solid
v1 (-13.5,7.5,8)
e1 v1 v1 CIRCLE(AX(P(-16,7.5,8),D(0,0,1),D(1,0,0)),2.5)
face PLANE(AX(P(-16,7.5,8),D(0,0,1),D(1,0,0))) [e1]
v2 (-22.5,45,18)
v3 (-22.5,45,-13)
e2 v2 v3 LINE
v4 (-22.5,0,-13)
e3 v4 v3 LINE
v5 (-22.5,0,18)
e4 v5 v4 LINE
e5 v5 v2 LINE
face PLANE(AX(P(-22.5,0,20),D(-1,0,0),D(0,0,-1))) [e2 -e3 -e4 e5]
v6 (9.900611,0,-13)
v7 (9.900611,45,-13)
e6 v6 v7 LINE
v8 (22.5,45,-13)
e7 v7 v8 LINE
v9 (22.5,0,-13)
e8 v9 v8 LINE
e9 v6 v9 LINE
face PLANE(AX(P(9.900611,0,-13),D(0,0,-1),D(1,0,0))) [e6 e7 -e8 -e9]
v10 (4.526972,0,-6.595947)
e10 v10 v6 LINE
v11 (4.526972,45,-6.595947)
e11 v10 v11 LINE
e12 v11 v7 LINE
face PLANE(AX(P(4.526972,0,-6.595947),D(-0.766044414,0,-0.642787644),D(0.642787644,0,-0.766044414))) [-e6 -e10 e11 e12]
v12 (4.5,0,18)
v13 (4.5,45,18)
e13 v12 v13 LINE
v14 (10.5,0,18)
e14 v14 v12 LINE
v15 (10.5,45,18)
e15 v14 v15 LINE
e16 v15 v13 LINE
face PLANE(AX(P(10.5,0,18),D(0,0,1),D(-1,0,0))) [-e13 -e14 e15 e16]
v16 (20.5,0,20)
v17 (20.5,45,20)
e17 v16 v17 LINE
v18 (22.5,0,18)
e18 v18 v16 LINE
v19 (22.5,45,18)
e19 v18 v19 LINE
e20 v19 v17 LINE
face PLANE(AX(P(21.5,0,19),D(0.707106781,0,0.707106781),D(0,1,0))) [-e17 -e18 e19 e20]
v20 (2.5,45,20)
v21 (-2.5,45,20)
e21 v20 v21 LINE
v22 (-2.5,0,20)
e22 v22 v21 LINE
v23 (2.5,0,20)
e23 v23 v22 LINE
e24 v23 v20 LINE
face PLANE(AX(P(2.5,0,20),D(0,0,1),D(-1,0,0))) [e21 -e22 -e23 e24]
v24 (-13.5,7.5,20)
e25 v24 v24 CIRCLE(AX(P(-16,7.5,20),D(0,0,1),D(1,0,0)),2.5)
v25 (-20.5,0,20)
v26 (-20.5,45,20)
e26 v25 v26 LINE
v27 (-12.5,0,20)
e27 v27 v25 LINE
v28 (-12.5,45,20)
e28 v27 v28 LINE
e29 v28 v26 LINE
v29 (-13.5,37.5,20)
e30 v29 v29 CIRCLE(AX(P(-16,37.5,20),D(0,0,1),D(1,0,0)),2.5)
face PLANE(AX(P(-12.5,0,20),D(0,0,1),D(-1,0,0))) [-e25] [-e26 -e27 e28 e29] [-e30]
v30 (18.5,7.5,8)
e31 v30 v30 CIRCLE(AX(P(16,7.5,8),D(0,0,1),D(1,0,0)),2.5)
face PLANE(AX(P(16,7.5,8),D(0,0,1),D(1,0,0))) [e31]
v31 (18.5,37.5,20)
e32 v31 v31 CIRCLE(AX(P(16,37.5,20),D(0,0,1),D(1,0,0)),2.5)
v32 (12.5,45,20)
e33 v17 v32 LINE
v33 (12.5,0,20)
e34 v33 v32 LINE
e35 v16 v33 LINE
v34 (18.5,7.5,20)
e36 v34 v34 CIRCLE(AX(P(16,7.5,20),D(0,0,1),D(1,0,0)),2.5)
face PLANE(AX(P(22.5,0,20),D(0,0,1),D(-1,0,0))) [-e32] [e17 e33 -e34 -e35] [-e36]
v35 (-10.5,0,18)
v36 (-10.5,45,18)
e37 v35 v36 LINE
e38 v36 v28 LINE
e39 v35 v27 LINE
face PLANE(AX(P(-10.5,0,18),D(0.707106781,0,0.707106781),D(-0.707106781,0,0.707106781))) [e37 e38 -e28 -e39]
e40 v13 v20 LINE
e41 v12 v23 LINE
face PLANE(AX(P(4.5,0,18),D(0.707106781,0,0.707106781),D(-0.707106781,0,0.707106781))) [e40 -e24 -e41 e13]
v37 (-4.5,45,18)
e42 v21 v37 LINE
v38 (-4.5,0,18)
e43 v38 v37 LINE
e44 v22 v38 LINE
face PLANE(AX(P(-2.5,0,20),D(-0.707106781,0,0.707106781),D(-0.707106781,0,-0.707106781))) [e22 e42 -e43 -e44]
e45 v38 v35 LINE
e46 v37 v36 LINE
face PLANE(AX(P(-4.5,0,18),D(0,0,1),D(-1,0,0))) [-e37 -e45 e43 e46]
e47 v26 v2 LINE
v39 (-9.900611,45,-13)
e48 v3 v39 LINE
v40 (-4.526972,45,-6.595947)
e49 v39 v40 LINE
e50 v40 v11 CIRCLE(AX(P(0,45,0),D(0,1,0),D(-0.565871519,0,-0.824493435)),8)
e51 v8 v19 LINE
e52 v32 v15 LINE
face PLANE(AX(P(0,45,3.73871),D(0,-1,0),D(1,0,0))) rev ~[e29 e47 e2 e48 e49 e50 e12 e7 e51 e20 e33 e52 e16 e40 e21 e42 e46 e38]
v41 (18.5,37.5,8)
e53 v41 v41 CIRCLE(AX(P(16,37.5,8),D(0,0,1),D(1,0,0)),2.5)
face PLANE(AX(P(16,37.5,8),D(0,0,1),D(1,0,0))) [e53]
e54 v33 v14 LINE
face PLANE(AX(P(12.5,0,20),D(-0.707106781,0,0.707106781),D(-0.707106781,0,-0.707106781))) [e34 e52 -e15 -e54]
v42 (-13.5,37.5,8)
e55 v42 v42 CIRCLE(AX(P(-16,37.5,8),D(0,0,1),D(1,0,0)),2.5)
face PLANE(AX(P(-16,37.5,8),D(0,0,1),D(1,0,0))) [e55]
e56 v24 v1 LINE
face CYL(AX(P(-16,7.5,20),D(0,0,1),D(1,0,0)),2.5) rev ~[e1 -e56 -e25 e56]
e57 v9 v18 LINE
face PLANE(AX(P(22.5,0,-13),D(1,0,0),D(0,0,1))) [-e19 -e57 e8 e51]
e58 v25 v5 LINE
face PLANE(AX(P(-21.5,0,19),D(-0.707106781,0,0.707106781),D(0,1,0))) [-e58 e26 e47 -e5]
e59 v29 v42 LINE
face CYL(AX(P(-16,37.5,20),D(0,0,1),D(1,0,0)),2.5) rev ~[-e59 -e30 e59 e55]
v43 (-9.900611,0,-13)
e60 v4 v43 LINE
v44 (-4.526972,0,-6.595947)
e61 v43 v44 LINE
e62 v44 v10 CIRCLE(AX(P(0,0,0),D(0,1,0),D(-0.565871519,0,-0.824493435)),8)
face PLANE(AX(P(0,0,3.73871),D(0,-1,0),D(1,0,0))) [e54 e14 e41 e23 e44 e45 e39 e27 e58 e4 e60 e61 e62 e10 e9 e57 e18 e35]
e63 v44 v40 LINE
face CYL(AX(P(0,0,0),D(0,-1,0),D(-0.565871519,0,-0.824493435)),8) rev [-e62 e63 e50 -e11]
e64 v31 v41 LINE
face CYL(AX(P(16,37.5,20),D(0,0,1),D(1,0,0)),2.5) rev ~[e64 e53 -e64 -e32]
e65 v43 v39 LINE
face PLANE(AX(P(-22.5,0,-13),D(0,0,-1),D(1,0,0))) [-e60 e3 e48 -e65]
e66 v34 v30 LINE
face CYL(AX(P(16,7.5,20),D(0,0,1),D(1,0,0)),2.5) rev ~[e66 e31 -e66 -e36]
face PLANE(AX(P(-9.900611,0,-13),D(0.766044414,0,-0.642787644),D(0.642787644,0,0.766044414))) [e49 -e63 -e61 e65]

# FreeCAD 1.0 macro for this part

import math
import FreeCAD as App
import Part
import Sketcher
Q = App.Units.Quantity


def edges_at(feature, points):
    """Names of the edges that pass closest to the given points."""
    edges = feature.Shape.Edges
    near = lambda p: min(range(len(edges)), key=lambda i: edges[i].distToShape(Part.Vertex(*p))[0])
    return sorted({f"Edge{near(p) + 1}" for p in points})

doc = App.newDocument("Part")
params = doc.addObject("Spreadsheet::Sheet", "Params")
for row, (alias, value) in enumerate([
    ("sketch1_radius", "8 mm"),
    ("sketch1_width", "10 mm"),
    ("sketch1_width2", "6 mm"),
    ("sketch1_width3", "5 mm"),
    ("sketch1_height", "33 mm"),
    ("pad1_length", "45 mm"),
    ("chamfer_size", "2 mm"),
    ("sketch2_diameter", "5 mm"),
    ("pocket1_length", "12 mm"),
], start=1):
    params.set(f"A{row}", alias)
    params.set(f"B{row}", "=" + value)
    params.setAlias(f"B{row}", alias)

body = doc.addObject("PartDesign::Body", "Body")

sketch1 = body.newObject("Sketcher::SketchObject", "Sketch")
sketch1.AttachmentSupport = (doc.getObject("XZ_Plane"), [""])
sketch1.MapMode = "FlatFace"
sketch1.addGeometry(Part.ArcOfCircle(Part.Circle(App.Vector(0, 0, 0), App.Vector(0, 0, 1), 8), math.radians(-56), math.radians(236)), False)
sketch1.addGeometry(Part.LineSegment(App.Vector(4.5, -6.6, 0), App.Vector(9.9, -13, 0)), False)
sketch1.addGeometry(Part.LineSegment(App.Vector(9.9, -13, 0), App.Vector(22.5, -13, 0)), False)
sketch1.addGeometry(Part.LineSegment(App.Vector(22.5, -13, 0), App.Vector(22.5, 20, 0)), False)
sketch1.addGeometry(Part.LineSegment(App.Vector(22.5, 20, 0), App.Vector(12.5, 20, 0)), False)
sketch1.addGeometry(Part.LineSegment(App.Vector(12.5, 20, 0), App.Vector(10.5, 18, 0)), False)
sketch1.addGeometry(Part.LineSegment(App.Vector(10.5, 18, 0), App.Vector(4.5, 18, 0)), False)
sketch1.addGeometry(Part.LineSegment(App.Vector(4.5, 18, 0), App.Vector(2.5, 20, 0)), False)
sketch1.addGeometry(Part.LineSegment(App.Vector(2.5, 20, 0), App.Vector(-2.5, 20, 0)), False)
sketch1.addGeometry(Part.LineSegment(App.Vector(-2.5, 20, 0), App.Vector(-4.5, 18, 0)), False)
sketch1.addGeometry(Part.LineSegment(App.Vector(-4.5, 18, 0), App.Vector(-10.5, 18, 0)), False)
sketch1.addGeometry(Part.LineSegment(App.Vector(-10.5, 18, 0), App.Vector(-12.5, 20, 0)), False)
sketch1.addGeometry(Part.LineSegment(App.Vector(-12.5, 20, 0), App.Vector(-22.5, 20, 0)), False)
sketch1.addGeometry(Part.LineSegment(App.Vector(-22.5, 20, 0), App.Vector(-22.5, -13, 0)), False)
sketch1.addGeometry(Part.LineSegment(App.Vector(-22.5, -13, 0), App.Vector(-9.9, -13, 0)), False)
sketch1.addGeometry(Part.LineSegment(App.Vector(-9.9, -13, 0), App.Vector(-4.5, -6.6, 0)), False)
sketch1.addConstraint(Sketcher.Constraint("Coincident", 0, 1, 1, 1))
sketch1.addConstraint(Sketcher.Constraint("Coincident", 1, 2, 2, 1))
sketch1.addConstraint(Sketcher.Constraint("Coincident", 2, 2, 3, 1))
sketch1.addConstraint(Sketcher.Constraint("Coincident", 3, 2, 4, 1))
sketch1.addConstraint(Sketcher.Constraint("Coincident", 4, 2, 5, 1))
sketch1.addConstraint(Sketcher.Constraint("Coincident", 5, 2, 6, 1))
sketch1.addConstraint(Sketcher.Constraint("Coincident", 6, 2, 7, 1))
sketch1.addConstraint(Sketcher.Constraint("Coincident", 7, 2, 8, 1))
sketch1.addConstraint(Sketcher.Constraint("Coincident", 8, 2, 9, 1))
sketch1.addConstraint(Sketcher.Constraint("Coincident", 9, 2, 10, 1))
sketch1.addConstraint(Sketcher.Constraint("Coincident", 10, 2, 11, 1))
sketch1.addConstraint(Sketcher.Constraint("Coincident", 11, 2, 12, 1))
sketch1.addConstraint(Sketcher.Constraint("Coincident", 12, 2, 13, 1))
sketch1.addConstraint(Sketcher.Constraint("Coincident", 13, 2, 14, 1))
sketch1.addConstraint(Sketcher.Constraint("Coincident", 14, 2, 15, 1))
sketch1.addConstraint(Sketcher.Constraint("Coincident", 15, 2, 0, 2))
sketch1.addConstraint(Sketcher.Constraint("Horizontal", 2))
sketch1.addConstraint(Sketcher.Constraint("Vertical", 3))
sketch1.addConstraint(Sketcher.Constraint("Horizontal", 4))
sketch1.addConstraint(Sketcher.Constraint("Horizontal", 6))
sketch1.addConstraint(Sketcher.Constraint("Horizontal", 8))
sketch1.addConstraint(Sketcher.Constraint("Horizontal", 10))
sketch1.addConstraint(Sketcher.Constraint("Horizontal", 12))
sketch1.addConstraint(Sketcher.Constraint("Vertical", 13))
sketch1.addConstraint(Sketcher.Constraint("Horizontal", 14))
sketch1.addConstraint(Sketcher.Constraint("Coincident", 0, 3, -1, 1))
sketch1.addConstraint(Sketcher.Constraint("Symmetric", 6, 2, 9, 2, -2))
sketch1.addConstraint(Sketcher.Constraint("Symmetric", 4, 2, 11, 2, -2))
sketch1.addConstraint(Sketcher.Constraint("Symmetric", 2, 2, 13, 2, -2))
sketch1.addConstraint(Sketcher.Constraint("Perpendicular", 5, 7))
sketch1.addConstraint(Sketcher.Constraint("Perpendicular", 7, 9))
sketch1.addConstraint(Sketcher.Constraint("Perpendicular", 9, 11))
sketch1.addConstraint(Sketcher.Constraint("Horizontal", 4, 2, 7, 2))
sketch1.addConstraint(Sketcher.Constraint("Horizontal", 0, 1, 15, 2))
sketch1.addConstraint(Sketcher.Constraint("Equal", 6, 10))
sketch1.addConstraint(Sketcher.Constraint("Equal", 2, 14))
sketch1.addConstraint(Sketcher.Constraint("Radius", 0, 8.0))
sketch1.addConstraint(Sketcher.Constraint("DistanceX", 4, 2, 4, 1, 10.0))
sketch1.addConstraint(Sketcher.Constraint("DistanceX", 6, 2, 6, 1, 6.0))
sketch1.addConstraint(Sketcher.Constraint("DistanceX", 8, 2, 8, 1, 5.0))
sketch1.addConstraint(Sketcher.Constraint("DistanceY", 3, 1, 3, 2, 33.0))
sketch1.addConstraint(Sketcher.Constraint("Angle", 1, Q("-49.999997 deg")))
sketch1.addConstraint(Sketcher.Constraint("DistanceY", 1, 2, -1, 1, 13.0))
sketch1.addConstraint(Sketcher.Constraint("DistanceY", -1, 1, 5, 2, 18.0))
sketch1.addConstraint(Sketcher.Constraint("DistanceX", 2, 1, 2, 2, 12.599389))
sketch1.setExpression("Constraints[36]", "Params.sketch1_radius")
sketch1.setExpression("Constraints[37]", "Params.sketch1_width")
sketch1.setExpression("Constraints[38]", "Params.sketch1_width2")
sketch1.setExpression("Constraints[39]", "Params.sketch1_width3")
sketch1.setExpression("Constraints[40]", "Params.sketch1_height")
pad1 = body.newObject("PartDesign::Pad", "Pad")
pad1.Profile = sketch1
pad1.setExpression("Length", "Params.pad1_length")
pad1.Reversed = True
doc.recompute()

chamfer = body.newObject("PartDesign::Chamfer", "Chamfer")
chamfer.Base = (pad1, edges_at(pad1, [(22.5, 22.5, 20), (-22.5, 22.5, 20)]))
chamfer.setExpression("Size", "Params.chamfer_size")

sketch2 = body.newObject("Sketcher::SketchObject", "Sketch001")
sketch2.AttachmentSupport = (doc.getObject("XY_Plane"), [""])
sketch2.MapMode = "FlatFace"
sketch2.AttachmentOffset = App.Placement(App.Vector(0, 0, 20), App.Rotation())
sketch2.addGeometry(Part.Circle(App.Vector(-16, 37.5, 0), App.Vector(0, 0, 1), 2.5), False)
sketch2.addGeometry(Part.Circle(App.Vector(-16, 7.5, 0), App.Vector(0, 0, 1), 2.5), False)
sketch2.addGeometry(Part.Circle(App.Vector(16, 37.5, 0), App.Vector(0, 0, 1), 2.5), False)
sketch2.addGeometry(Part.Circle(App.Vector(16, 7.5, 0), App.Vector(0, 0, 1), 2.5), False)
sketch2.addConstraint(Sketcher.Constraint("Equal", 0, 1))
sketch2.addConstraint(Sketcher.Constraint("Equal", 1, 2))
sketch2.addConstraint(Sketcher.Constraint("Equal", 2, 3))
sketch2.addConstraint(Sketcher.Constraint("Symmetric", 0, 3, 2, 3, -2))
sketch2.addConstraint(Sketcher.Constraint("Symmetric", 1, 3, 3, 3, -2))
sketch2.addConstraint(Sketcher.Constraint("Vertical", 0, 3, 1, 3))
sketch2.addConstraint(Sketcher.Constraint("Diameter", 0, 5.0))
sketch2.addConstraint(Sketcher.Constraint("DistanceX", 0, 3, -1, 1, 16.0))
sketch2.addConstraint(Sketcher.Constraint("DistanceY", 1, 3, 0, 3, 30.0))
sketch2.addConstraint(Sketcher.Constraint("DistanceY", -1, 1, 0, 3, 37.5))
sketch2.setExpression("Constraints[6]", "Params.sketch2_diameter")
pocket1 = body.newObject("PartDesign::Pocket", "Pocket")
pocket1.Profile = sketch2
pocket1.setExpression("Length", "Params.pocket1_length")

doc.recompute()
